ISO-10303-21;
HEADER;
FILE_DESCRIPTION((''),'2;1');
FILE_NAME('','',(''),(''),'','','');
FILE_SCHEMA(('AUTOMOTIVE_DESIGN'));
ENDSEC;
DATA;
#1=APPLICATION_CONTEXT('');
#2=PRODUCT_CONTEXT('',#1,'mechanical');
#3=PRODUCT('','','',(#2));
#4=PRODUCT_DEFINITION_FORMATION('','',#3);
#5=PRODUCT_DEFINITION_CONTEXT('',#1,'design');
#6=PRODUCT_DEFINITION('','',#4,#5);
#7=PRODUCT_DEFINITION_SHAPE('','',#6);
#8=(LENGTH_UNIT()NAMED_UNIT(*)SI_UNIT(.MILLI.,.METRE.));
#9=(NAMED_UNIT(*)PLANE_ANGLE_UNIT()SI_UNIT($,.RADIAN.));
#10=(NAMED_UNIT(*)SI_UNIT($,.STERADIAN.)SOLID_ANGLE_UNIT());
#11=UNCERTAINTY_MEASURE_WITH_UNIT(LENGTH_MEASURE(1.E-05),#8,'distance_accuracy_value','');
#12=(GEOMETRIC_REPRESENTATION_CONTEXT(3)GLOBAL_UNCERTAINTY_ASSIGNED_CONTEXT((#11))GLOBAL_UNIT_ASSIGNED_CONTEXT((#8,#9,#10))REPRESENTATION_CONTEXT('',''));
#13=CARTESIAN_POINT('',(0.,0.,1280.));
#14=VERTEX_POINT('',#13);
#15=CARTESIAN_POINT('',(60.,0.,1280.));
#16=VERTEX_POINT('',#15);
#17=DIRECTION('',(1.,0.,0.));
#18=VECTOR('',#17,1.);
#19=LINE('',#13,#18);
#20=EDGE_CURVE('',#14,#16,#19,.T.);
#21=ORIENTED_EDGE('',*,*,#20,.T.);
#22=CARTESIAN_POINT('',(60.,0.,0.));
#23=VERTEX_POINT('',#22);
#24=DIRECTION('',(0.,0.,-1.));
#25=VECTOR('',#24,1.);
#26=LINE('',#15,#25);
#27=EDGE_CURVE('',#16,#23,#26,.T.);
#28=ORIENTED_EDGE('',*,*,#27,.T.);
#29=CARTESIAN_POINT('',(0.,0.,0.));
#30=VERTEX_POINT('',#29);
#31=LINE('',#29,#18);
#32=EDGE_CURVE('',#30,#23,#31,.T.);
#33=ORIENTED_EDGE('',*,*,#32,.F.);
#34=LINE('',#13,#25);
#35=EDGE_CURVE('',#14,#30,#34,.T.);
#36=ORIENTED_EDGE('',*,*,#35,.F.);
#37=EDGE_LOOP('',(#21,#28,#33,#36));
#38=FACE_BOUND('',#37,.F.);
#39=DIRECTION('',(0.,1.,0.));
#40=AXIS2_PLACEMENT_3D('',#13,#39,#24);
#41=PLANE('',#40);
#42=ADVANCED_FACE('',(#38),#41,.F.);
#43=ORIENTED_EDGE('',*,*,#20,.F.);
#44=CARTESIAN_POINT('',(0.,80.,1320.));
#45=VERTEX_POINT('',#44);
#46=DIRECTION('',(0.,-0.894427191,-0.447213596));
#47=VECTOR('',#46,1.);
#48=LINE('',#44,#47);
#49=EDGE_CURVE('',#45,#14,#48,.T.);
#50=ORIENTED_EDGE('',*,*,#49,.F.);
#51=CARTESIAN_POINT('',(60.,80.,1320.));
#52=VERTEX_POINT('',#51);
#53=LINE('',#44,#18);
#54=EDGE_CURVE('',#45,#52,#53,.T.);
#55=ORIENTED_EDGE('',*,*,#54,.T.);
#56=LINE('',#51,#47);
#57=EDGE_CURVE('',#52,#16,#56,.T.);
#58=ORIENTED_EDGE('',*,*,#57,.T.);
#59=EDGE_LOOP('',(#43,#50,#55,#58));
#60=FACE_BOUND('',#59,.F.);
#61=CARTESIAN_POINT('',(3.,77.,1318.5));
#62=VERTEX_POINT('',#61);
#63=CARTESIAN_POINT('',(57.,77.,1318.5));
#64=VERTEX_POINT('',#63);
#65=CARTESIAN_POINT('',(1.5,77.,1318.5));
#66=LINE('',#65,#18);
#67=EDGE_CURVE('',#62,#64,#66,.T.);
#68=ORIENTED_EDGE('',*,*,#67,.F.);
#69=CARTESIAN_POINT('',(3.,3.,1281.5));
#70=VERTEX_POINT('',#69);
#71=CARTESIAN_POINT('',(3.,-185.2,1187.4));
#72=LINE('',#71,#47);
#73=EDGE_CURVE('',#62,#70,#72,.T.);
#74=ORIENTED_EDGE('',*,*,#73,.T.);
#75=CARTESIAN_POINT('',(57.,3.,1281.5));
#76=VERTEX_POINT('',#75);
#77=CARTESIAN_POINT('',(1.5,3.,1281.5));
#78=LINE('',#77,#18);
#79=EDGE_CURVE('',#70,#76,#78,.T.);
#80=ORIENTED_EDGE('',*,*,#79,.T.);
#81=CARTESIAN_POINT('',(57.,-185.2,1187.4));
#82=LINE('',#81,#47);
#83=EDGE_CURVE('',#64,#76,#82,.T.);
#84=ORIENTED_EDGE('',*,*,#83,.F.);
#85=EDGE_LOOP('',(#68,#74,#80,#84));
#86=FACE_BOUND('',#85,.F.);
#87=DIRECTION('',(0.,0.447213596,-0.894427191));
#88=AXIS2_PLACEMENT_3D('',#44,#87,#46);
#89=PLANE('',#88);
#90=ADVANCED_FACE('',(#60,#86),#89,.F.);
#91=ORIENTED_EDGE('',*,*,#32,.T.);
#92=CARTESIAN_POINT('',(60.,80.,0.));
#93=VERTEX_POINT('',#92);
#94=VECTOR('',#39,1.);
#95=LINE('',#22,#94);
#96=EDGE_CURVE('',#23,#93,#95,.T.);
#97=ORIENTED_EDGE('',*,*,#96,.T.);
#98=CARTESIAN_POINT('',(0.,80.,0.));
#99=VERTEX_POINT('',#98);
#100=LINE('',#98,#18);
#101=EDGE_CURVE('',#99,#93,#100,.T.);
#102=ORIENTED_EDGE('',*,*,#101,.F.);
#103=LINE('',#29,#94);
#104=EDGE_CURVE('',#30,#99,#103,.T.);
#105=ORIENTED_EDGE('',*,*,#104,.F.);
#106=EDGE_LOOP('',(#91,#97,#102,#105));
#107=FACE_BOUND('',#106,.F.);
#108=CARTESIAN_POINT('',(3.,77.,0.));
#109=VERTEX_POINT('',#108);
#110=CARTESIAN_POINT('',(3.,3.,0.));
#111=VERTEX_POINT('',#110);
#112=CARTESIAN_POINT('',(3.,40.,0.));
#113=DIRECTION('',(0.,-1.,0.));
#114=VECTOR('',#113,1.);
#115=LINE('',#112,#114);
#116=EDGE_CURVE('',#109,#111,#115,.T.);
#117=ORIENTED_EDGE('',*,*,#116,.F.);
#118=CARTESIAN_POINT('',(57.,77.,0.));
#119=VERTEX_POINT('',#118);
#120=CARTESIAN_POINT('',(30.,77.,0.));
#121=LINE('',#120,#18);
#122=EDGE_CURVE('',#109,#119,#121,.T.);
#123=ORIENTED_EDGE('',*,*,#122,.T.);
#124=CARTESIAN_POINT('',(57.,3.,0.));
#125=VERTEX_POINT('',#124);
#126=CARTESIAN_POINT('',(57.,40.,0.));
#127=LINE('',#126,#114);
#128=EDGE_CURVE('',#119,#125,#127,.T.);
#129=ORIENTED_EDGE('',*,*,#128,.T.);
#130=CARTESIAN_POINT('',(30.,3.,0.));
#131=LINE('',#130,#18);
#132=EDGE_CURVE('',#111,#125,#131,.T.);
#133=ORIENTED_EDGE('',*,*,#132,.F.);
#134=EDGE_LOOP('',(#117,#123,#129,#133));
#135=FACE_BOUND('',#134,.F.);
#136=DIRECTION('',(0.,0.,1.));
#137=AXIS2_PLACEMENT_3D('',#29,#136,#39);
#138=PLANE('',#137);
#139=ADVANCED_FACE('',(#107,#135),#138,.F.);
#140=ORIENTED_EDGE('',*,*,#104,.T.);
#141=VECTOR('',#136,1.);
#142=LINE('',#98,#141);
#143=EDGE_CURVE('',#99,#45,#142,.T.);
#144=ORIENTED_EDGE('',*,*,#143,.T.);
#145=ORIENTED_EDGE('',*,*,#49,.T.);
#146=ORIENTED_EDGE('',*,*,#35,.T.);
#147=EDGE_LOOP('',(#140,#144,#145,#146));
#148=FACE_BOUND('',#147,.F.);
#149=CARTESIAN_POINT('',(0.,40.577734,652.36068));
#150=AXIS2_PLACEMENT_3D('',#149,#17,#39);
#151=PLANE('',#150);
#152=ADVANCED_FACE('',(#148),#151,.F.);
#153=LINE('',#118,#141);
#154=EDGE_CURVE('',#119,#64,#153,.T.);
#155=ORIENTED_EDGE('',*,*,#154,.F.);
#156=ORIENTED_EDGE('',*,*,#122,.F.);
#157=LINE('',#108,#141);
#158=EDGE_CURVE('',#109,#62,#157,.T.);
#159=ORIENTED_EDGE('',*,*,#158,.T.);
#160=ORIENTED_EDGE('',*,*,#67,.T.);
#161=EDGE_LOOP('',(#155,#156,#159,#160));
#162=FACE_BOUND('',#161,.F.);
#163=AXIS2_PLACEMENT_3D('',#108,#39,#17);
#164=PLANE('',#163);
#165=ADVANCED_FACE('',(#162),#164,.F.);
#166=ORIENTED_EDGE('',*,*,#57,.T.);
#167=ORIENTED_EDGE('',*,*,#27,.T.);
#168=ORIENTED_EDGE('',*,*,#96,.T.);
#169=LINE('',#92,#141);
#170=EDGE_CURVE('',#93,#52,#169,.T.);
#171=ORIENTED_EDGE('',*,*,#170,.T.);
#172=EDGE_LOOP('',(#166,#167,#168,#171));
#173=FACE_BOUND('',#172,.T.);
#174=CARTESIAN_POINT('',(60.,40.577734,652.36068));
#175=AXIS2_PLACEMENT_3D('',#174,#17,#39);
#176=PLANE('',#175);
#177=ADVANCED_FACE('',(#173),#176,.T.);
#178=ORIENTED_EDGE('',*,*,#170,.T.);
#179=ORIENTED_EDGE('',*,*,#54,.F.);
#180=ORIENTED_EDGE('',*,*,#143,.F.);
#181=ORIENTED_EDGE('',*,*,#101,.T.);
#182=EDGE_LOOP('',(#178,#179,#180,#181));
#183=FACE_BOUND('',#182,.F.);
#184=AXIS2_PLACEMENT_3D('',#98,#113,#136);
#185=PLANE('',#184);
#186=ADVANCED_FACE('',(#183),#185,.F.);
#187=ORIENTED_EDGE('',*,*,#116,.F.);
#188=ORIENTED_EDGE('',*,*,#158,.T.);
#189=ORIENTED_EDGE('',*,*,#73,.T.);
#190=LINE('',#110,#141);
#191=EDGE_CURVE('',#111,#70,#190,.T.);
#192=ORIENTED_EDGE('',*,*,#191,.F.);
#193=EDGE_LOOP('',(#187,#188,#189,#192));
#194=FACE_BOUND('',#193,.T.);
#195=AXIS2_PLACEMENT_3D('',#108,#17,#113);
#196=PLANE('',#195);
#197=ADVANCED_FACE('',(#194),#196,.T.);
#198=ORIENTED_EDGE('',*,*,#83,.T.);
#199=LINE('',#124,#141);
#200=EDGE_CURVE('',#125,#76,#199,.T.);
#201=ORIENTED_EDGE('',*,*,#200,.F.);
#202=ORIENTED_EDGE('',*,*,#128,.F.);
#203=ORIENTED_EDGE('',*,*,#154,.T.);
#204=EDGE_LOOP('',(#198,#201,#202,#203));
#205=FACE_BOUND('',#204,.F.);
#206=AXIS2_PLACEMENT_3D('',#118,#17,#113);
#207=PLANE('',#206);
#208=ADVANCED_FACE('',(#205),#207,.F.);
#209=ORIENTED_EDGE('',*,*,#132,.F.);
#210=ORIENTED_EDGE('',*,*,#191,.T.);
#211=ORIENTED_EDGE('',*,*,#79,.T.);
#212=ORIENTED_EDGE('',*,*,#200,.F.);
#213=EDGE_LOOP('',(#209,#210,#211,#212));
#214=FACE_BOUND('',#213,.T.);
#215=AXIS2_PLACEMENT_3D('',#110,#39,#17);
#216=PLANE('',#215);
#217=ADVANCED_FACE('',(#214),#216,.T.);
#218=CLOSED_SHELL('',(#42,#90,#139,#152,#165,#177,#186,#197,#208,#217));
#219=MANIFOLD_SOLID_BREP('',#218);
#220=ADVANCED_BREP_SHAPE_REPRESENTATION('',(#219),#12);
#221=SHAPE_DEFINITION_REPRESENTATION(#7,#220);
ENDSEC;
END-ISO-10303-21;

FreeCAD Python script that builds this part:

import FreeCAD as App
import Part
import Sketcher
Q = App.Units.Quantity


def add_polygon(sketch, points):
    """Adds a closed chain of lines whose ends are joined by coincident constraints."""
    first, n = sketch.GeometryCount, len(points)
    for a, b in zip(points, points[1:] + points[:1]):
        sketch.addGeometry(Part.LineSegment(App.Vector(*a, 0), App.Vector(*b, 0)), False)
    for i in range(n):
        sketch.addConstraint(Sketcher.Constraint("Coincident", first + i, 2, first + (i + 1) % n, 1))

doc = App.newDocument("Part")
body = doc.addObject("PartDesign::Body", "Body")

sketch1 = body.newObject("Sketcher::SketchObject", "Sketch")
sketch1.AttachmentSupport = (doc.getObject("YZ_Plane"), [""])
sketch1.MapMode = "FlatFace"
add_polygon(sketch1, [(0, 1280), (0, 0), (80, 0), (80, 1320)])
sketch1.addConstraint(Sketcher.Constraint("Vertical", 0))
sketch1.addConstraint(Sketcher.Constraint("Horizontal", 1))
sketch1.addConstraint(Sketcher.Constraint("Vertical", 2))
sketch1.addConstraint(Sketcher.Constraint("Coincident", 0, 2, -1, 1))
sketch1.addConstraint(Sketcher.Constraint("DistanceX", 1, 1, 1, 2, Q("80 mm")))
sketch1.addConstraint(Sketcher.Constraint("DistanceY", 0, 2, 0, 1, Q("1280 mm")))
sketch1.addConstraint(Sketcher.Constraint("DistanceY", 2, 1, 2, 2, Q("1320 mm")))
pad1 = body.newObject("PartDesign::Pad", "Pad")
pad1.Profile = sketch1
pad1.Length = 60

sketch2 = body.newObject("Sketcher::SketchObject", "Sketch001")
sketch2.AttachmentSupport = (doc.getObject("XY_Plane"), [""])
sketch2.MapMode = "FlatFace"
add_polygon(sketch2, [(3, 3), (3, 77), (57, 77), (57, 3)])
sketch2.addConstraint(Sketcher.Constraint("Vertical", 0))
sketch2.addConstraint(Sketcher.Constraint("Horizontal", 1))
sketch2.addConstraint(Sketcher.Constraint("Vertical", 2))
sketch2.addConstraint(Sketcher.Constraint("Horizontal", 3))
sketch2.addConstraint(Sketcher.Constraint("DistanceX", 1, 1, 1, 2, Q("54 mm")))
sketch2.addConstraint(Sketcher.Constraint("DistanceY", 0, 1, 0, 2, Q("74 mm")))
sketch2.addConstraint(Sketcher.Constraint("DistanceX", -1, 1, 0, 2, Q("3 mm")))
sketch2.addConstraint(Sketcher.Constraint("DistanceY", -1, 1, 0, 2, Q("77 mm")))
pocket1 = body.newObject("PartDesign::Pocket", "Pocket")
pocket1.Profile = sketch2
pocket1.Type = "ThroughAll"
pocket1.Reversed = True

doc.recompute()
